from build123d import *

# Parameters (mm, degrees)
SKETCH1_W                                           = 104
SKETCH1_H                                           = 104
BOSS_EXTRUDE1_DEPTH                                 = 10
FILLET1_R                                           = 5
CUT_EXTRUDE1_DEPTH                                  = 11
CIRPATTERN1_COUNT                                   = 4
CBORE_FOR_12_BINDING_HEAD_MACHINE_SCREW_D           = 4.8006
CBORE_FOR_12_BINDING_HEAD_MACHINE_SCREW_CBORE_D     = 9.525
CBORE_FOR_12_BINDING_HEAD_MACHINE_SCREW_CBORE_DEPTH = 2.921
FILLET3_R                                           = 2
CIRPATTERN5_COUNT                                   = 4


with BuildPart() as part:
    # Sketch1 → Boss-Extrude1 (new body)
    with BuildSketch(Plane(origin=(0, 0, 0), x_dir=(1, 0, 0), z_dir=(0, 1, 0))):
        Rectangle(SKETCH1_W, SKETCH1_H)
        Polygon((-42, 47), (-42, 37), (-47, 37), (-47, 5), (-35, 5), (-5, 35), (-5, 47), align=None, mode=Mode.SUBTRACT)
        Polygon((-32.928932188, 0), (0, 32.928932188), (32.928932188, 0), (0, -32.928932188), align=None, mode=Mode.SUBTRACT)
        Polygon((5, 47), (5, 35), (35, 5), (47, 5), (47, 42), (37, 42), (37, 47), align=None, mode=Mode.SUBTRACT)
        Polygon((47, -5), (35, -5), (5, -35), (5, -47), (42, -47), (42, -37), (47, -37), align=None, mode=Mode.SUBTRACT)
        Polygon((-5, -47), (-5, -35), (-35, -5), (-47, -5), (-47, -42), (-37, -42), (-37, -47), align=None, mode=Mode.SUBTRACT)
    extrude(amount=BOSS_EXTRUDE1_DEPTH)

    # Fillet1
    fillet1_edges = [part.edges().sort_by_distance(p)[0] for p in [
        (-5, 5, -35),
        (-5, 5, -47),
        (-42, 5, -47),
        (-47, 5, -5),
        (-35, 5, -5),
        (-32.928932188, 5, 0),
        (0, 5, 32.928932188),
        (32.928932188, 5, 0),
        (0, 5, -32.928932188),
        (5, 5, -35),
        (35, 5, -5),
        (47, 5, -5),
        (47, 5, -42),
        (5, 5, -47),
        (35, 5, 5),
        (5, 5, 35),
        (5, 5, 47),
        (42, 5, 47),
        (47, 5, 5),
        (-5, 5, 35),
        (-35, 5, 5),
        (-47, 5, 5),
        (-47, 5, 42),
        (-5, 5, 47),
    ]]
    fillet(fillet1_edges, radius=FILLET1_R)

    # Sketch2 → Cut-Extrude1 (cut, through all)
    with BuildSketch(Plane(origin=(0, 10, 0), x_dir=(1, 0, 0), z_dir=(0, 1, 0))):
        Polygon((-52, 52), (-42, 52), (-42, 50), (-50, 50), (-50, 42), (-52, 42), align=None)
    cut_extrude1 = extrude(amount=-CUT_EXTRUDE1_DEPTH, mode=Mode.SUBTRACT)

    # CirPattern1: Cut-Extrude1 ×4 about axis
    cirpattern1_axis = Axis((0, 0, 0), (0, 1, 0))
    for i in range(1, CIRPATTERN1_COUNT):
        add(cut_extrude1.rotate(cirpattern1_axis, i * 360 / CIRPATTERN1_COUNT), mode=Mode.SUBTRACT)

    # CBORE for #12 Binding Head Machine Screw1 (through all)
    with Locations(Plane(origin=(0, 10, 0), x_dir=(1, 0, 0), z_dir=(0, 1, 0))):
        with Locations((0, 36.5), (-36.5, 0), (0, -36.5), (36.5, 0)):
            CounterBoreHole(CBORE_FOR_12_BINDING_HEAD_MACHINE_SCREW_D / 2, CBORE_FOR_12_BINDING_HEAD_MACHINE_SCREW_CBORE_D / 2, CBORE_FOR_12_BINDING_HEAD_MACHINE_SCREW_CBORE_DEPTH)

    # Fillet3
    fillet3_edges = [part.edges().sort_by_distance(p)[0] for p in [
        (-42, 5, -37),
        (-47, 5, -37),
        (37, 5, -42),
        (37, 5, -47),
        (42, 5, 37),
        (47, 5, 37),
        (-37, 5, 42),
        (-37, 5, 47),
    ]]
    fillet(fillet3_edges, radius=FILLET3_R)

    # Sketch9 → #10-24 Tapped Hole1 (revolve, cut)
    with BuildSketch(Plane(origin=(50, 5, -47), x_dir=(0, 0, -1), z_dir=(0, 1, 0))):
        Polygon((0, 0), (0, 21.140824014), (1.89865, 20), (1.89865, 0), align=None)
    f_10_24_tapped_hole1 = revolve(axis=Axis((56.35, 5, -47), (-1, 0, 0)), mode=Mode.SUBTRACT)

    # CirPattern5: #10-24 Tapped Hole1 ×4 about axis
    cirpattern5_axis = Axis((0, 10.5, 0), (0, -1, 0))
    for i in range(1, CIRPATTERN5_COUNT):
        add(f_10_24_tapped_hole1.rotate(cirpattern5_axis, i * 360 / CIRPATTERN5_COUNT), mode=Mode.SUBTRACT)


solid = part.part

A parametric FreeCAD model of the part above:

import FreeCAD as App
import Part
import Sketcher
from FreeCAD import Vector
Q = App.Units.Quantity


def edges_at(feature, points):
    """Names of the edges that pass closest to the given points."""
    edges = feature.Shape.Edges
    near = lambda p: min(range(len(edges)), key=lambda i: edges[i].distToShape(Part.Vertex(*p))[0])
    return sorted({f"Edge{near(p) + 1}" for p in points})


def add_polygon(sketch, points):
    """Adds a closed chain of lines whose ends are joined by coincident constraints."""
    first, n = sketch.GeometryCount, len(points)
    for a, b in zip(points, points[1:] + points[:1]):
        sketch.addGeometry(Part.LineSegment(App.Vector(*a, 0), App.Vector(*b, 0)), False)
    for i in range(n):
        sketch.addConstraint(Sketcher.Constraint("Coincident", first + i, 2, first + (i + 1) % n, 1))

doc = App.newDocument("Part")
body = doc.addObject("PartDesign::Body", "Body")

sketch1 = body.newObject("Sketcher::SketchObject", "Sketch")
sketch1.AttachmentSupport = (doc.getObject("XZ_Plane"), [""])
sketch1.MapMode = "FlatFace"
add_polygon(sketch1, [(-52, -52), (-52, 52), (52, 52), (52, -52)])
add_polygon(sketch1, [(-5, 35), (-5, 47), (-37, 47), (-37, 42), (-47, 42), (-47, 5), (-35, 5)])
add_polygon(sketch1, [(35, 5), (47, 5), (47, 37), (42, 37), (42, 47), (5, 47), (5, 35)])
add_polygon(sketch1, [(-42, -37), (-42, -47), (-5, -47), (-5, -35), (-35, -5), (-47, -5), (-47, -37)])
add_polygon(sketch1, [(0, 33), (-33, 0), (0, -33), (33, 0)])
add_polygon(sketch1, [(5, -35), (5, -47), (37, -47), (37, -42), (47, -42), (47, -5), (35, -5)])
sketch1.addConstraint(Sketcher.Constraint("Vertical", 0))
sketch1.addConstraint(Sketcher.Constraint("Horizontal", 1))
sketch1.addConstraint(Sketcher.Constraint("Vertical", 2))
sketch1.addConstraint(Sketcher.Constraint("Horizontal", 3))
sketch1.addConstraint(Sketcher.Constraint("Vertical", 4))
sketch1.addConstraint(Sketcher.Constraint("Horizontal", 5))
sketch1.addConstraint(Sketcher.Constraint("Vertical", 6))
sketch1.addConstraint(Sketcher.Constraint("Horizontal", 7))
sketch1.addConstraint(Sketcher.Constraint("Vertical", 8))
sketch1.addConstraint(Sketcher.Constraint("Horizontal", 9))
sketch1.addConstraint(Sketcher.Constraint("Horizontal", 11))
sketch1.addConstraint(Sketcher.Constraint("Vertical", 12))
sketch1.addConstraint(Sketcher.Constraint("Horizontal", 13))
sketch1.addConstraint(Sketcher.Constraint("Vertical", 14))
sketch1.addConstraint(Sketcher.Constraint("Horizontal", 15))
sketch1.addConstraint(Sketcher.Constraint("Vertical", 16))
sketch1.addConstraint(Sketcher.Constraint("Vertical", 18))
sketch1.addConstraint(Sketcher.Constraint("Horizontal", 19))
sketch1.addConstraint(Sketcher.Constraint("Vertical", 20))
sketch1.addConstraint(Sketcher.Constraint("Horizontal", 22))
sketch1.addConstraint(Sketcher.Constraint("Vertical", 23))
sketch1.addConstraint(Sketcher.Constraint("Horizontal", 24))
sketch1.addConstraint(Sketcher.Constraint("Vertical", 29))
sketch1.addConstraint(Sketcher.Constraint("Horizontal", 30))
sketch1.addConstraint(Sketcher.Constraint("Vertical", 31))
sketch1.addConstraint(Sketcher.Constraint("Horizontal", 32))
sketch1.addConstraint(Sketcher.Constraint("Vertical", 33))
sketch1.addConstraint(Sketcher.Constraint("Horizontal", 34))
sketch1.addConstraint(Sketcher.Constraint("Symmetric", 0, 2, 2, 2, -1, 1))
sketch1.addConstraint(Sketcher.Constraint("Symmetric", 14, 2, 18, 2, -1, 1))
sketch1.addConstraint(Sketcher.Constraint("Symmetric", 16, 2, 20, 2, -1, 1))
sketch1.addConstraint(Sketcher.Constraint("Symmetric", 17, 2, 21, 2, -1, 1))
sketch1.addConstraint(Sketcher.Constraint("Symmetric", 12, 2, 23, 2, -1, 1))
sketch1.addConstraint(Sketcher.Constraint("Symmetric", 25, 2, 27, 2, -1, 1))
sketch1.addConstraint(Sketcher.Constraint("Symmetric", 26, 2, 28, 2, -1, 1))
sketch1.addConstraint(Sketcher.Constraint("Symmetric", 4, 2, 29, 2, -1, 1))
sketch1.addConstraint(Sketcher.Constraint("Symmetric", 6, 2, 31, 2, -1, 1))
sketch1.addConstraint(Sketcher.Constraint("Symmetric", 8, 2, 33, 2, -1, 1))
sketch1.addConstraint(Sketcher.Constraint("Symmetric", 8, 2, 11, 2, -2))
sketch1.addConstraint(Sketcher.Constraint("Symmetric", 4, 2, 15, 2, -2))
sketch1.addConstraint(Sketcher.Constraint("PointOnObject", 25, 2, -1))
sketch1.addConstraint(Sketcher.Constraint("PointOnObject", 26, 2, -2))
sketch1.addConstraint(Sketcher.Constraint("Perpendicular", 10, 17))
sketch1.addConstraint(Sketcher.Constraint("Perpendicular", 21, 25))
sketch1.addConstraint(Sketcher.Constraint("Perpendicular", 25, 26))
sketch1.addConstraint(Sketcher.Constraint("Perpendicular", 28, 35))
sketch1.addConstraint(Sketcher.Constraint("Horizontal", 10, 2, 16, 2))
sketch1.addConstraint(Sketcher.Constraint("Horizontal", 20, 2, 35, 2))
sketch1.addConstraint(Sketcher.Constraint("Equal", 3, 0))
sketch1.addConstraint(Sketcher.Constraint("Equal", 34, 4))
sketch1.addConstraint(Sketcher.Constraint("Equal", 24, 6))
sketch1.addConstraint(Sketcher.Constraint("Equal", 30, 12))
sketch1.addConstraint(Sketcher.Constraint("DistanceX", 1, 1, 1, 2, Q("104 mm")))
sketch1.addConstraint(Sketcher.Constraint("DistanceX", 5, 2, 5, 1, Q("32 mm")))
sketch1.addConstraint(Sketcher.Constraint("DistanceX", 7, 2, 7, 1, Q("10 mm")))
sketch1.addConstraint(Sketcher.Constraint("DistanceX", 9, 1, 9, 2, Q("12 mm")))
sketch1.addConstraint(Sketcher.Constraint("DistanceX", 13, 2, 13, 1, Q("5 mm")))
sketch1.addConstraint(Sketcher.Constraint("DistanceX", 4, 2, -1, 1, Q("5 mm")))
sketch1.addConstraint(Sketcher.Constraint("DistanceY", -1, 1, 4, 2, Q("47 mm")))
sketch1.addConstraint(Sketcher.Constraint("Distance", 25, Q("46.568542 mm")))
pad1 = body.newObject("PartDesign::Pad", "Pad")
pad1.Profile = sketch1
pad1.Length = 10
pad1.Reversed = True
doc.recompute()

fillet = body.newObject("PartDesign::Fillet", "Fillet")
fillet.Base = (pad1, edges_at(pad1, [
    (-5, 5, -35),
    (-5, 5, -47),
    (-42, 5, -47),
    (-47, 5, -5),
    (-35, 5, -5),
    (-32.929, 5, 0),
    (0, 5, 32.929),
    (32.929, 5, 0),
    (0, 5, -32.929),
    (5, 5, -35),
    (35, 5, -5),
    (47, 5, -5),
    (47, 5, -42),
    (5, 5, -47),
    (35, 5, 5),
    (5, 5, 35),
    (5, 5, 47),
    (42, 5, 47),
    (47, 5, 5),
    (-5, 5, 35),
    (-35, 5, 5),
    (-47, 5, 5),
    (-47, 5, 42),
    (-5, 5, 47),
]))
fillet.Radius = 5

sketch2 = body.newObject("Sketcher::SketchObject", "Sketch001")
sketch2.AttachmentSupport = (doc.getObject("XZ_Plane"), [""])
sketch2.MapMode = "FlatFace"
sketch2.AttachmentOffset = App.Placement(Vector(0, 0, -10), App.Rotation())
add_polygon(sketch2, [(-42, -52), (-52, -52), (-52, -42), (-50, -42), (-50, -50), (-42, -50)])
sketch2.addConstraint(Sketcher.Constraint("Horizontal", 0))
sketch2.addConstraint(Sketcher.Constraint("Vertical", 1))
sketch2.addConstraint(Sketcher.Constraint("Horizontal", 2))
sketch2.addConstraint(Sketcher.Constraint("Vertical", 3))
sketch2.addConstraint(Sketcher.Constraint("Horizontal", 4))
sketch2.addConstraint(Sketcher.Constraint("Vertical", 5))
sketch2.addConstraint(Sketcher.Constraint("Equal", 0, 1))
sketch2.addConstraint(Sketcher.Constraint("Equal", 4, 3))
sketch2.addConstraint(Sketcher.Constraint("DistanceX", 0, 2, 0, 1, Q("10 mm")))
sketch2.addConstraint(Sketcher.Constraint("DistanceX", 2, 1, 2, 2, Q("2 mm")))
sketch2.addConstraint(Sketcher.Constraint("DistanceX", 0, 2, -1, 1, Q("52 mm")))
sketch2.addConstraint(Sketcher.Constraint("DistanceY", 0, 2, -1, 1, Q("52 mm")))
pocket1 = body.newObject("PartDesign::Pocket", "Pocket")
pocket1.Profile = sketch2
pocket1.Type = "ThroughAll"
pocket1.Reversed = True
doc.recompute()

polarpattern = body.newObject("PartDesign::PolarPattern", "PolarPattern")
polarpattern.Originals = [pocket1]
polarpattern.Axis = (doc.getObject("Y_Axis"), [""])
polarpattern.Angle = 360
polarpattern.Occurrences = 4
body.Tip = polarpattern

sketch3 = body.newObject("Sketcher::SketchObject", "Sketch002")
sketch3.AttachmentSupport = (doc.getObject("XZ_Plane"), [""])
sketch3.MapMode = "FlatFace"
sketch3.AttachmentOffset = App.Placement(Vector(0, 0, -10), App.Rotation())
sketch3.addGeometry(Part.Circle(Vector(0, -36.5, 0), Vector(0, 0, 1), 2.4), False)
sketch3.addGeometry(Part.Circle(Vector(-36.5, 0, 0), Vector(0, 0, 1), 2.4), False)
sketch3.addGeometry(Part.Circle(Vector(0, 36.5, 0), Vector(0, 0, 1), 2.4), False)
sketch3.addGeometry(Part.Circle(Vector(36.5, 0, 0), Vector(0, 0, 1), 2.4), False)
sketch3.addConstraint(Sketcher.Constraint("Equal", 0, 1))
sketch3.addConstraint(Sketcher.Constraint("Equal", 1, 2))
sketch3.addConstraint(Sketcher.Constraint("Equal", 2, 3))
sketch3.addConstraint(Sketcher.Constraint("Symmetric", 0, 3, 2, 3, -1, 1))
sketch3.addConstraint(Sketcher.Constraint("Symmetric", 1, 3, 3, 3, -1, 1))
sketch3.addConstraint(Sketcher.Constraint("PointOnObject", 0, 3, -2))
sketch3.addConstraint(Sketcher.Constraint("PointOnObject", 1, 3, -1))
sketch3.addConstraint(Sketcher.Constraint("DistanceY", 0, 3, 2, 3, Q("73 mm")))
sketch3.addConstraint(Sketcher.Constraint("DistanceX", 1, 3, 3, 3, Q("73 mm")))
sketch3.addConstraint(Sketcher.Constraint("Diameter", 0, Q("4.8006 mm")))
doc.recompute()
hole = body.newObject("PartDesign::Hole", "Hole")
hole.Profile = sketch3
hole.ThreadType = "None"
hole.Diameter = 4.8006
hole.DepthType = "ThroughAll"
hole.HoleCutType = "Counterbore"
hole.HoleCutDiameter = 9.525
hole.HoleCutDepth = 2.921
hole.Reversed = True
doc.recompute()

fillet2 = body.newObject("PartDesign::Fillet", "Fillet001")
fillet2.Base = (hole, edges_at(hole, [
    (-42, 5, -37),
    (-47, 5, -37),
    (37, 5, -42),
    (37, 5, -47),
    (42, 5, 37),
    (47, 5, 37),
    (-37, 5, 42),
    (-37, 5, 47),
]))
fillet2.Radius = 2

sketch4 = body.newObject("Sketcher::SketchObject", "Sketch003")
sketch4.AttachmentSupport = (doc.getObject("XZ_Plane"), [""])
sketch4.MapMode = "FlatFace"
sketch4.AttachmentOffset = App.Placement(Vector(0, 0, -5), App.Rotation())
add_polygon(sketch4, [(28.9, -47), (50, -47), (50, -48.9), (30, -48.9)])
sketch4.addGeometry(Part.LineSegment(Vector(50, -47, 0), Vector(28.9, -47, 0)), True)
sketch4.addConstraint(Sketcher.Constraint("Horizontal", 0))
sketch4.addConstraint(Sketcher.Constraint("Vertical", 1))
sketch4.addConstraint(Sketcher.Constraint("Horizontal", 2))
sketch4.addConstraint(Sketcher.Constraint("Horizontal", 4))
sketch4.addConstraint(Sketcher.Constraint("Coincident", 4, 1, 0, 2))
sketch4.addConstraint(Sketcher.Constraint("Equal", 0, 4))
sketch4.addConstraint(Sketcher.Constraint("DistanceX", 2, 2, 2, 1, Q("20 mm")))
sketch4.addConstraint(Sketcher.Constraint("Angle", 3, Q("121 deg")))
sketch4.addConstraint(Sketcher.Constraint("DistanceX", -1, 1, 0, 2, Q("50 mm")))
sketch4.addConstraint(Sketcher.Constraint("DistanceY", 0, 2, -1, 1, Q("47 mm")))
sketch4.addConstraint(Sketcher.Constraint("DistanceY", 1, 2, 1, 1, Q("1.89865 mm")))
groove = body.newObject("PartDesign::Groove", "Groove")
groove.Profile = sketch4
groove.ReferenceAxis = (sketch4, ["Axis0"])
groove.Angle = 360
doc.recompute()

polarpattern2 = body.newObject("PartDesign::PolarPattern", "PolarPattern001")
polarpattern2.Originals = [groove]
polarpattern2.Axis = (doc.getObject("Y_Axis"), [""])
polarpattern2.Angle = 360
polarpattern2.Occurrences = 4
body.Tip = polarpattern2

doc.recompute()
